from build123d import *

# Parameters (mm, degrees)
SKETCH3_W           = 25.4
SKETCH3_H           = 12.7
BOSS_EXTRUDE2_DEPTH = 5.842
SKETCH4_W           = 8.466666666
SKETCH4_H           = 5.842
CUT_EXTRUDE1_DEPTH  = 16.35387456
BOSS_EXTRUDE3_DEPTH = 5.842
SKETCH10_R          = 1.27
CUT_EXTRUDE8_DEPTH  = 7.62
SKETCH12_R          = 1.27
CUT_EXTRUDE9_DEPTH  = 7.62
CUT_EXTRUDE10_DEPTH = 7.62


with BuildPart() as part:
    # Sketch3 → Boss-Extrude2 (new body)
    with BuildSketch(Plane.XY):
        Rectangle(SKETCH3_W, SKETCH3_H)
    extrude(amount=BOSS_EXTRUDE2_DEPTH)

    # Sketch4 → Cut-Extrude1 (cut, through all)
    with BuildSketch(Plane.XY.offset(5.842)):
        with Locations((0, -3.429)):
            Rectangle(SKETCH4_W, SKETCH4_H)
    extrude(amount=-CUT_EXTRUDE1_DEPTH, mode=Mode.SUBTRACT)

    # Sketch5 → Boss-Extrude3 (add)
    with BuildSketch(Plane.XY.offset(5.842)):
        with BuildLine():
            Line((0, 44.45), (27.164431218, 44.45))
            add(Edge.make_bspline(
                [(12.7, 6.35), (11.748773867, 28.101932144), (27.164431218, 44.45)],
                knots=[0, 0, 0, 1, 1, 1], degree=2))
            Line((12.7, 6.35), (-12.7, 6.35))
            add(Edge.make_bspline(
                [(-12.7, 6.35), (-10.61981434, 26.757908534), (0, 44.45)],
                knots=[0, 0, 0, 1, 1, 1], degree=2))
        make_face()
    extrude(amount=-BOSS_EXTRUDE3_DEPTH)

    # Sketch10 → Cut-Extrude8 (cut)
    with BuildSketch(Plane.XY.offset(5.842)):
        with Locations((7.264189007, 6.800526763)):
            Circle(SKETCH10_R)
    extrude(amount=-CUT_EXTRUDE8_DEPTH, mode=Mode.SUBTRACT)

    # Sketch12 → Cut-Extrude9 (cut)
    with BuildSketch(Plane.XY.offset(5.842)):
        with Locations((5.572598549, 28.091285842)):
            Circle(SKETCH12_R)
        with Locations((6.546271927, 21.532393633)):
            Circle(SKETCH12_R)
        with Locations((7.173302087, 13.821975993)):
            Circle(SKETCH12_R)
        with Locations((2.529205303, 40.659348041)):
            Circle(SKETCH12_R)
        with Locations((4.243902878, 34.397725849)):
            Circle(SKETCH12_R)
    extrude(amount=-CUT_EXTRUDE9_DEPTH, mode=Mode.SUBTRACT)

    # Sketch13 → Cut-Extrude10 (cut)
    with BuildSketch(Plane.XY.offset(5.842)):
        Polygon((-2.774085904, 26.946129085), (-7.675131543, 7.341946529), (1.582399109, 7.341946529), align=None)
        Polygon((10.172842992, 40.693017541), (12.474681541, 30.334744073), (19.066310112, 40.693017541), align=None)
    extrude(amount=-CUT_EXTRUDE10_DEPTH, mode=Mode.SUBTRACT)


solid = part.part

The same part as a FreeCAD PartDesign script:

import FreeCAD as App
import Part
import Sketcher
from FreeCAD import Vector
Q = App.Units.Quantity

doc = App.newDocument("Part")
body = doc.addObject("PartDesign::Body", "Body")

# Sketch on XY plane
sketch1 = doc.addObject("Sketcher::SketchObject", "Sketch")
body.addObject(sketch1)
sketch1.AttachmentSupport = (doc.XY_Plane, [""])
sketch1.MapMode = "FlatFace"
sketch1.addGeometry(Part.LineSegment(Vector(-13, 6, 0), Vector(-13, -6, 0)), False)
sketch1.addGeometry(Part.LineSegment(Vector(-13, -6, 0), Vector(13, -6, 0)), False)
sketch1.addGeometry(Part.LineSegment(Vector(13, -6, 0), Vector(13, 6, 0)), False)
sketch1.addGeometry(Part.LineSegment(Vector(13, 6, 0), Vector(-13, 6, 0)), False)
sketch1.addConstraint(Sketcher.Constraint("Coincident", 0, 2, 1, 1))
sketch1.addConstraint(Sketcher.Constraint("Coincident", 1, 2, 2, 1))
sketch1.addConstraint(Sketcher.Constraint("Coincident", 2, 2, 3, 1))
sketch1.addConstraint(Sketcher.Constraint("Coincident", 3, 2, 0, 1))
sketch1.addConstraint(Sketcher.Constraint("Vertical", 0))
sketch1.addConstraint(Sketcher.Constraint("Horizontal", 1))
sketch1.addConstraint(Sketcher.Constraint("Vertical", 2))
sketch1.addConstraint(Sketcher.Constraint("Horizontal", 3))
sketch1.addConstraint(Sketcher.Constraint("Symmetric", 0, 2, 2, 2, -1, 1))
sketch1.addConstraint(Sketcher.Constraint("DistanceX", 1, 1, 1, 2, Q("1 in")))
sketch1.addConstraint(Sketcher.Constraint("DistanceY", 0, 2, 0, 1, Q("0.5 in")))
pad1 = doc.addObject("PartDesign::Pad", "Pad")
body.addObject(pad1)
pad1.Profile = sketch1
pad1.Length = Q("0.23 in")

# Sketch on XY plane
sketch2 = doc.addObject("Sketcher::SketchObject", "Sketch001")
body.addObject(sketch2)
sketch2.AttachmentSupport = (doc.XY_Plane, [""])
sketch2.MapMode = "FlatFace"
sketch2.AttachmentOffset = App.Placement(Vector(0, 0, 0.23 * 25.4), App.Rotation())
sketch2.addGeometry(Part.LineSegment(Vector(-4, -1, 0), Vector(-4, -6, 0)), False)
sketch2.addGeometry(Part.LineSegment(Vector(-4, -6, 0), Vector(4, -6, 0)), False)
sketch2.addGeometry(Part.LineSegment(Vector(4, -6, 0), Vector(4, -1, 0)), False)
sketch2.addGeometry(Part.LineSegment(Vector(4, -1, 0), Vector(-4, -1, 0)), False)
sketch2.addConstraint(Sketcher.Constraint("Coincident", 0, 2, 1, 1))
sketch2.addConstraint(Sketcher.Constraint("Coincident", 1, 2, 2, 1))
sketch2.addConstraint(Sketcher.Constraint("Coincident", 2, 2, 3, 1))
sketch2.addConstraint(Sketcher.Constraint("Coincident", 3, 2, 0, 1))
sketch2.addConstraint(Sketcher.Constraint("Vertical", 0))
sketch2.addConstraint(Sketcher.Constraint("Horizontal", 1))
sketch2.addConstraint(Sketcher.Constraint("Vertical", 2))
sketch2.addConstraint(Sketcher.Constraint("Horizontal", 3))
sketch2.addConstraint(Sketcher.Constraint("DistanceY", 0, 2, 0, 1, Q("0.23 in")))
sketch2.addConstraint(Sketcher.Constraint("DistanceY", 0, 2, -1, 1, Q("0.25 in")))
sketch2.addConstraint(Sketcher.Constraint("DistanceX", 1, 1, 1, 2, Q("8.466667 mm")))
sketch2.addConstraint(Sketcher.Constraint("DistanceX", 0, 2, -1, 1, Q("4.233333 mm")))
pocket1 = doc.addObject("PartDesign::Pocket", "Pocket")
body.addObject(pocket1)
pocket1.Profile = sketch2
pocket1.Type = "ThroughAll"

# Sketch on XY plane
sketch3 = doc.addObject("Sketcher::SketchObject", "Sketch002")
body.addObject(sketch3)
sketch3.AttachmentSupport = (doc.XY_Plane, [""])
sketch3.MapMode = "FlatFace"
sketch3.AttachmentOffset = App.Placement(Vector(0, 0, 0.23 * 25.4), App.Rotation())
sketch3.addGeometry(Part.LineSegment(Vector(27.164431, 44.45, 0), Vector(0, 44.45, 0)), False)
sketch3.addGeometry(Part.BSplineCurve([Vector(-12.7, 6.35, 0), Vector(-10.619814, 26.757909, 0), Vector(0, 44.45, 0)], [3, 3], [0, 1], False, 2, [1, 1, 1], False), False)
sketch3.addGeometry(Part.LineSegment(Vector(-12.7, 6.35, 0), Vector(12.7, 6.35, 0)), False)
sketch3.addGeometry(Part.BSplineCurve([Vector(12.7, 6.35, 0), Vector(11.748774, 28.101932, 0), Vector(27.164431, 44.45, 0)], [3, 3], [0, 1], False, 2, [1, 1, 1], False), False)
sketch3.addConstraint(Sketcher.Constraint("Block", 1))
sketch3.addConstraint(Sketcher.Constraint("Block", 3))
sketch3.addConstraint(Sketcher.Constraint("Coincident", 0, 2, 1, 2))
sketch3.addConstraint(Sketcher.Constraint("Coincident", 1, 1, 2, 1))
sketch3.addConstraint(Sketcher.Constraint("Coincident", 2, 2, 3, 1))
sketch3.addConstraint(Sketcher.Constraint("Coincident", 3, 2, 0, 1))
pad2 = doc.addObject("PartDesign::Pad", "Pad001")
body.addObject(pad2)
pad2.Profile = sketch3
pad2.Length = Q("0.23 in")
pad2.Reversed = True

# Sketch on XY plane
sketch4 = doc.addObject("Sketcher::SketchObject", "Sketch003")
body.addObject(sketch4)
sketch4.AttachmentSupport = (doc.XY_Plane, [""])
sketch4.MapMode = "FlatFace"
sketch4.AttachmentOffset = App.Placement(Vector(0, 0, 0.23 * 25.4), App.Rotation())
sketch4.addGeometry(Part.Circle(Vector(7.3, 6.8, 0), Vector(0, 0, 1), 1.3), False)
sketch4.addConstraint(Sketcher.Constraint("Diameter", 0, Q("0.1 in")))
sketch4.addConstraint(Sketcher.Constraint("DistanceX", -1, 1, 0, 3, Q("7.264189 mm")))
sketch4.addConstraint(Sketcher.Constraint("DistanceY", -1, 1, 0, 3, Q("6.800527 mm")))
pocket2 = doc.addObject("PartDesign::Pocket", "Pocket001")
body.addObject(pocket2)
pocket2.Profile = sketch4
pocket2.Length = Q("0.3 in")

# Sketch on XY plane
sketch5 = doc.addObject("Sketcher::SketchObject", "Sketch004")
body.addObject(sketch5)
sketch5.AttachmentSupport = (doc.XY_Plane, [""])
sketch5.MapMode = "FlatFace"
sketch5.AttachmentOffset = App.Placement(Vector(0, 0, 0.23 * 25.4), App.Rotation())
sketch5.addGeometry(Part.Circle(Vector(5.6, 28.1, 0), Vector(0, 0, 1), 1.3), False)
sketch5.addGeometry(Part.Circle(Vector(6.5, 21.5, 0), Vector(0, 0, 1), 1.3), False)
sketch5.addGeometry(Part.Circle(Vector(7.2, 13.8, 0), Vector(0, 0, 1), 1.3), False)
sketch5.addGeometry(Part.Circle(Vector(2.5, 40.7, 0), Vector(0, 0, 1), 1.3), False)
sketch5.addGeometry(Part.Circle(Vector(4.2, 34.4, 0), Vector(0, 0, 1), 1.3), False)
sketch5.addConstraint(Sketcher.Constraint("Equal", 0, 1))
sketch5.addConstraint(Sketcher.Constraint("Equal", 1, 2))
sketch5.addConstraint(Sketcher.Constraint("Equal", 2, 3))
sketch5.addConstraint(Sketcher.Constraint("Equal", 3, 4))
sketch5.addConstraint(Sketcher.Constraint("Diameter", 0, Q("0.1 in")))
sketch5.addConstraint(Sketcher.Constraint("DistanceX", -1, 1, 0, 3, Q("5.572599 mm")))
sketch5.addConstraint(Sketcher.Constraint("DistanceX", 4, 3, 2, 3, Q("2.929399 mm")))
sketch5.addConstraint(Sketcher.Constraint("DistanceX", -1, 1, 1, 3, Q("6.546272 mm")))
sketch5.addConstraint(Sketcher.Constraint("DistanceY", -1, 1, 3, 3, Q("40.659348 mm")))
sketch5.addConstraint(Sketcher.Constraint("DistanceX", 1, 3, 2, 3, Q("0.62703 mm")))
sketch5.addConstraint(Sketcher.Constraint("DistanceY", 2, 3, 0, 3, Q("14.26931 mm")))
sketch5.addConstraint(Sketcher.Constraint("DistanceY", 0, 3, 4, 3, Q("6.30644 mm")))
sketch5.addConstraint(Sketcher.Constraint("DistanceY", -1, 1, 0, 3, Q("28.091286 mm")))
sketch5.addConstraint(Sketcher.Constraint("DistanceY", -1, 1, 1, 3, Q("21.532394 mm")))
sketch5.addConstraint(Sketcher.Constraint("DistanceX", -1, 1, 3, 3, Q("2.529205 mm")))
pocket3 = doc.addObject("PartDesign::Pocket", "Pocket002")
body.addObject(pocket3)
pocket3.Profile = sketch5
pocket3.Length = Q("0.3 in")

# Sketch on XY plane
sketch6 = doc.addObject("Sketcher::SketchObject", "Sketch005")
body.addObject(sketch6)
sketch6.AttachmentSupport = (doc.XY_Plane, [""])
sketch6.MapMode = "FlatFace"
sketch6.AttachmentOffset = App.Placement(Vector(0, 0, 0.23 * 25.4), App.Rotation())
sketch6.addGeometry(Part.LineSegment(Vector(-3, 27, 0), Vector(-8, 7, 0)), False)
sketch6.addGeometry(Part.LineSegment(Vector(-8, 7, 0), Vector(2, 7, 0)), False)
sketch6.addGeometry(Part.LineSegment(Vector(2, 7, 0), Vector(-3, 27, 0)), False)
sketch6.addGeometry(Part.LineSegment(Vector(10, 41, 0), Vector(12, 30, 0)), False)
sketch6.addGeometry(Part.LineSegment(Vector(12, 30, 0), Vector(19, 41, 0)), False)
sketch6.addGeometry(Part.LineSegment(Vector(19, 41, 0), Vector(10, 41, 0)), False)
sketch6.addConstraint(Sketcher.Constraint("Coincident", 0, 2, 1, 1))
sketch6.addConstraint(Sketcher.Constraint("Coincident", 1, 2, 2, 1))
sketch6.addConstraint(Sketcher.Constraint("Coincident", 2, 2, 0, 1))
sketch6.addConstraint(Sketcher.Constraint("Coincident", 3, 2, 4, 1))
sketch6.addConstraint(Sketcher.Constraint("Coincident", 4, 2, 5, 1))
sketch6.addConstraint(Sketcher.Constraint("Coincident", 5, 2, 3, 1))
sketch6.addConstraint(Sketcher.Constraint("Horizontal", 1))
sketch6.addConstraint(Sketcher.Constraint("Horizontal", 5))
sketch6.addConstraint(Sketcher.Constraint("Parallel", 2, 3))
sketch6.addConstraint(Sketcher.Constraint("DistanceX", 1, 1, 1, 2, Q("9.257531 mm")))
sketch6.addConstraint(Sketcher.Constraint("DistanceX", -1, 1, 1, 2, Q("1.582399 mm")))
sketch6.addConstraint(Sketcher.Constraint("Distance", 0, Q("20.207529 mm")))
sketch6.addConstraint(Sketcher.Constraint("Distance", 3, Q("10.610951 mm")))
sketch6.addConstraint(Sketcher.Constraint("Distance", 4, Q("12.27776 mm")))
sketch6.addConstraint(Sketcher.Constraint("DistanceX", 5, 2, 5, 1, Q("8.893467 mm")))
sketch6.addConstraint(Sketcher.Constraint("DistanceY", -1, 1, 2, 2, Q("26.946129 mm")))
sketch6.addConstraint(Sketcher.Constraint("DistanceX", -1, 1, 3, 2, Q("12.474682 mm")))
sketch6.addConstraint(Sketcher.Constraint("DistanceY", 2, 2, 4, 2, Q("13.746888 mm")))
pocket4 = doc.addObject("PartDesign::Pocket", "Pocket003")
body.addObject(pocket4)
pocket4.Profile = sketch6
pocket4.Length = Q("0.3 in")

doc.recompute()
